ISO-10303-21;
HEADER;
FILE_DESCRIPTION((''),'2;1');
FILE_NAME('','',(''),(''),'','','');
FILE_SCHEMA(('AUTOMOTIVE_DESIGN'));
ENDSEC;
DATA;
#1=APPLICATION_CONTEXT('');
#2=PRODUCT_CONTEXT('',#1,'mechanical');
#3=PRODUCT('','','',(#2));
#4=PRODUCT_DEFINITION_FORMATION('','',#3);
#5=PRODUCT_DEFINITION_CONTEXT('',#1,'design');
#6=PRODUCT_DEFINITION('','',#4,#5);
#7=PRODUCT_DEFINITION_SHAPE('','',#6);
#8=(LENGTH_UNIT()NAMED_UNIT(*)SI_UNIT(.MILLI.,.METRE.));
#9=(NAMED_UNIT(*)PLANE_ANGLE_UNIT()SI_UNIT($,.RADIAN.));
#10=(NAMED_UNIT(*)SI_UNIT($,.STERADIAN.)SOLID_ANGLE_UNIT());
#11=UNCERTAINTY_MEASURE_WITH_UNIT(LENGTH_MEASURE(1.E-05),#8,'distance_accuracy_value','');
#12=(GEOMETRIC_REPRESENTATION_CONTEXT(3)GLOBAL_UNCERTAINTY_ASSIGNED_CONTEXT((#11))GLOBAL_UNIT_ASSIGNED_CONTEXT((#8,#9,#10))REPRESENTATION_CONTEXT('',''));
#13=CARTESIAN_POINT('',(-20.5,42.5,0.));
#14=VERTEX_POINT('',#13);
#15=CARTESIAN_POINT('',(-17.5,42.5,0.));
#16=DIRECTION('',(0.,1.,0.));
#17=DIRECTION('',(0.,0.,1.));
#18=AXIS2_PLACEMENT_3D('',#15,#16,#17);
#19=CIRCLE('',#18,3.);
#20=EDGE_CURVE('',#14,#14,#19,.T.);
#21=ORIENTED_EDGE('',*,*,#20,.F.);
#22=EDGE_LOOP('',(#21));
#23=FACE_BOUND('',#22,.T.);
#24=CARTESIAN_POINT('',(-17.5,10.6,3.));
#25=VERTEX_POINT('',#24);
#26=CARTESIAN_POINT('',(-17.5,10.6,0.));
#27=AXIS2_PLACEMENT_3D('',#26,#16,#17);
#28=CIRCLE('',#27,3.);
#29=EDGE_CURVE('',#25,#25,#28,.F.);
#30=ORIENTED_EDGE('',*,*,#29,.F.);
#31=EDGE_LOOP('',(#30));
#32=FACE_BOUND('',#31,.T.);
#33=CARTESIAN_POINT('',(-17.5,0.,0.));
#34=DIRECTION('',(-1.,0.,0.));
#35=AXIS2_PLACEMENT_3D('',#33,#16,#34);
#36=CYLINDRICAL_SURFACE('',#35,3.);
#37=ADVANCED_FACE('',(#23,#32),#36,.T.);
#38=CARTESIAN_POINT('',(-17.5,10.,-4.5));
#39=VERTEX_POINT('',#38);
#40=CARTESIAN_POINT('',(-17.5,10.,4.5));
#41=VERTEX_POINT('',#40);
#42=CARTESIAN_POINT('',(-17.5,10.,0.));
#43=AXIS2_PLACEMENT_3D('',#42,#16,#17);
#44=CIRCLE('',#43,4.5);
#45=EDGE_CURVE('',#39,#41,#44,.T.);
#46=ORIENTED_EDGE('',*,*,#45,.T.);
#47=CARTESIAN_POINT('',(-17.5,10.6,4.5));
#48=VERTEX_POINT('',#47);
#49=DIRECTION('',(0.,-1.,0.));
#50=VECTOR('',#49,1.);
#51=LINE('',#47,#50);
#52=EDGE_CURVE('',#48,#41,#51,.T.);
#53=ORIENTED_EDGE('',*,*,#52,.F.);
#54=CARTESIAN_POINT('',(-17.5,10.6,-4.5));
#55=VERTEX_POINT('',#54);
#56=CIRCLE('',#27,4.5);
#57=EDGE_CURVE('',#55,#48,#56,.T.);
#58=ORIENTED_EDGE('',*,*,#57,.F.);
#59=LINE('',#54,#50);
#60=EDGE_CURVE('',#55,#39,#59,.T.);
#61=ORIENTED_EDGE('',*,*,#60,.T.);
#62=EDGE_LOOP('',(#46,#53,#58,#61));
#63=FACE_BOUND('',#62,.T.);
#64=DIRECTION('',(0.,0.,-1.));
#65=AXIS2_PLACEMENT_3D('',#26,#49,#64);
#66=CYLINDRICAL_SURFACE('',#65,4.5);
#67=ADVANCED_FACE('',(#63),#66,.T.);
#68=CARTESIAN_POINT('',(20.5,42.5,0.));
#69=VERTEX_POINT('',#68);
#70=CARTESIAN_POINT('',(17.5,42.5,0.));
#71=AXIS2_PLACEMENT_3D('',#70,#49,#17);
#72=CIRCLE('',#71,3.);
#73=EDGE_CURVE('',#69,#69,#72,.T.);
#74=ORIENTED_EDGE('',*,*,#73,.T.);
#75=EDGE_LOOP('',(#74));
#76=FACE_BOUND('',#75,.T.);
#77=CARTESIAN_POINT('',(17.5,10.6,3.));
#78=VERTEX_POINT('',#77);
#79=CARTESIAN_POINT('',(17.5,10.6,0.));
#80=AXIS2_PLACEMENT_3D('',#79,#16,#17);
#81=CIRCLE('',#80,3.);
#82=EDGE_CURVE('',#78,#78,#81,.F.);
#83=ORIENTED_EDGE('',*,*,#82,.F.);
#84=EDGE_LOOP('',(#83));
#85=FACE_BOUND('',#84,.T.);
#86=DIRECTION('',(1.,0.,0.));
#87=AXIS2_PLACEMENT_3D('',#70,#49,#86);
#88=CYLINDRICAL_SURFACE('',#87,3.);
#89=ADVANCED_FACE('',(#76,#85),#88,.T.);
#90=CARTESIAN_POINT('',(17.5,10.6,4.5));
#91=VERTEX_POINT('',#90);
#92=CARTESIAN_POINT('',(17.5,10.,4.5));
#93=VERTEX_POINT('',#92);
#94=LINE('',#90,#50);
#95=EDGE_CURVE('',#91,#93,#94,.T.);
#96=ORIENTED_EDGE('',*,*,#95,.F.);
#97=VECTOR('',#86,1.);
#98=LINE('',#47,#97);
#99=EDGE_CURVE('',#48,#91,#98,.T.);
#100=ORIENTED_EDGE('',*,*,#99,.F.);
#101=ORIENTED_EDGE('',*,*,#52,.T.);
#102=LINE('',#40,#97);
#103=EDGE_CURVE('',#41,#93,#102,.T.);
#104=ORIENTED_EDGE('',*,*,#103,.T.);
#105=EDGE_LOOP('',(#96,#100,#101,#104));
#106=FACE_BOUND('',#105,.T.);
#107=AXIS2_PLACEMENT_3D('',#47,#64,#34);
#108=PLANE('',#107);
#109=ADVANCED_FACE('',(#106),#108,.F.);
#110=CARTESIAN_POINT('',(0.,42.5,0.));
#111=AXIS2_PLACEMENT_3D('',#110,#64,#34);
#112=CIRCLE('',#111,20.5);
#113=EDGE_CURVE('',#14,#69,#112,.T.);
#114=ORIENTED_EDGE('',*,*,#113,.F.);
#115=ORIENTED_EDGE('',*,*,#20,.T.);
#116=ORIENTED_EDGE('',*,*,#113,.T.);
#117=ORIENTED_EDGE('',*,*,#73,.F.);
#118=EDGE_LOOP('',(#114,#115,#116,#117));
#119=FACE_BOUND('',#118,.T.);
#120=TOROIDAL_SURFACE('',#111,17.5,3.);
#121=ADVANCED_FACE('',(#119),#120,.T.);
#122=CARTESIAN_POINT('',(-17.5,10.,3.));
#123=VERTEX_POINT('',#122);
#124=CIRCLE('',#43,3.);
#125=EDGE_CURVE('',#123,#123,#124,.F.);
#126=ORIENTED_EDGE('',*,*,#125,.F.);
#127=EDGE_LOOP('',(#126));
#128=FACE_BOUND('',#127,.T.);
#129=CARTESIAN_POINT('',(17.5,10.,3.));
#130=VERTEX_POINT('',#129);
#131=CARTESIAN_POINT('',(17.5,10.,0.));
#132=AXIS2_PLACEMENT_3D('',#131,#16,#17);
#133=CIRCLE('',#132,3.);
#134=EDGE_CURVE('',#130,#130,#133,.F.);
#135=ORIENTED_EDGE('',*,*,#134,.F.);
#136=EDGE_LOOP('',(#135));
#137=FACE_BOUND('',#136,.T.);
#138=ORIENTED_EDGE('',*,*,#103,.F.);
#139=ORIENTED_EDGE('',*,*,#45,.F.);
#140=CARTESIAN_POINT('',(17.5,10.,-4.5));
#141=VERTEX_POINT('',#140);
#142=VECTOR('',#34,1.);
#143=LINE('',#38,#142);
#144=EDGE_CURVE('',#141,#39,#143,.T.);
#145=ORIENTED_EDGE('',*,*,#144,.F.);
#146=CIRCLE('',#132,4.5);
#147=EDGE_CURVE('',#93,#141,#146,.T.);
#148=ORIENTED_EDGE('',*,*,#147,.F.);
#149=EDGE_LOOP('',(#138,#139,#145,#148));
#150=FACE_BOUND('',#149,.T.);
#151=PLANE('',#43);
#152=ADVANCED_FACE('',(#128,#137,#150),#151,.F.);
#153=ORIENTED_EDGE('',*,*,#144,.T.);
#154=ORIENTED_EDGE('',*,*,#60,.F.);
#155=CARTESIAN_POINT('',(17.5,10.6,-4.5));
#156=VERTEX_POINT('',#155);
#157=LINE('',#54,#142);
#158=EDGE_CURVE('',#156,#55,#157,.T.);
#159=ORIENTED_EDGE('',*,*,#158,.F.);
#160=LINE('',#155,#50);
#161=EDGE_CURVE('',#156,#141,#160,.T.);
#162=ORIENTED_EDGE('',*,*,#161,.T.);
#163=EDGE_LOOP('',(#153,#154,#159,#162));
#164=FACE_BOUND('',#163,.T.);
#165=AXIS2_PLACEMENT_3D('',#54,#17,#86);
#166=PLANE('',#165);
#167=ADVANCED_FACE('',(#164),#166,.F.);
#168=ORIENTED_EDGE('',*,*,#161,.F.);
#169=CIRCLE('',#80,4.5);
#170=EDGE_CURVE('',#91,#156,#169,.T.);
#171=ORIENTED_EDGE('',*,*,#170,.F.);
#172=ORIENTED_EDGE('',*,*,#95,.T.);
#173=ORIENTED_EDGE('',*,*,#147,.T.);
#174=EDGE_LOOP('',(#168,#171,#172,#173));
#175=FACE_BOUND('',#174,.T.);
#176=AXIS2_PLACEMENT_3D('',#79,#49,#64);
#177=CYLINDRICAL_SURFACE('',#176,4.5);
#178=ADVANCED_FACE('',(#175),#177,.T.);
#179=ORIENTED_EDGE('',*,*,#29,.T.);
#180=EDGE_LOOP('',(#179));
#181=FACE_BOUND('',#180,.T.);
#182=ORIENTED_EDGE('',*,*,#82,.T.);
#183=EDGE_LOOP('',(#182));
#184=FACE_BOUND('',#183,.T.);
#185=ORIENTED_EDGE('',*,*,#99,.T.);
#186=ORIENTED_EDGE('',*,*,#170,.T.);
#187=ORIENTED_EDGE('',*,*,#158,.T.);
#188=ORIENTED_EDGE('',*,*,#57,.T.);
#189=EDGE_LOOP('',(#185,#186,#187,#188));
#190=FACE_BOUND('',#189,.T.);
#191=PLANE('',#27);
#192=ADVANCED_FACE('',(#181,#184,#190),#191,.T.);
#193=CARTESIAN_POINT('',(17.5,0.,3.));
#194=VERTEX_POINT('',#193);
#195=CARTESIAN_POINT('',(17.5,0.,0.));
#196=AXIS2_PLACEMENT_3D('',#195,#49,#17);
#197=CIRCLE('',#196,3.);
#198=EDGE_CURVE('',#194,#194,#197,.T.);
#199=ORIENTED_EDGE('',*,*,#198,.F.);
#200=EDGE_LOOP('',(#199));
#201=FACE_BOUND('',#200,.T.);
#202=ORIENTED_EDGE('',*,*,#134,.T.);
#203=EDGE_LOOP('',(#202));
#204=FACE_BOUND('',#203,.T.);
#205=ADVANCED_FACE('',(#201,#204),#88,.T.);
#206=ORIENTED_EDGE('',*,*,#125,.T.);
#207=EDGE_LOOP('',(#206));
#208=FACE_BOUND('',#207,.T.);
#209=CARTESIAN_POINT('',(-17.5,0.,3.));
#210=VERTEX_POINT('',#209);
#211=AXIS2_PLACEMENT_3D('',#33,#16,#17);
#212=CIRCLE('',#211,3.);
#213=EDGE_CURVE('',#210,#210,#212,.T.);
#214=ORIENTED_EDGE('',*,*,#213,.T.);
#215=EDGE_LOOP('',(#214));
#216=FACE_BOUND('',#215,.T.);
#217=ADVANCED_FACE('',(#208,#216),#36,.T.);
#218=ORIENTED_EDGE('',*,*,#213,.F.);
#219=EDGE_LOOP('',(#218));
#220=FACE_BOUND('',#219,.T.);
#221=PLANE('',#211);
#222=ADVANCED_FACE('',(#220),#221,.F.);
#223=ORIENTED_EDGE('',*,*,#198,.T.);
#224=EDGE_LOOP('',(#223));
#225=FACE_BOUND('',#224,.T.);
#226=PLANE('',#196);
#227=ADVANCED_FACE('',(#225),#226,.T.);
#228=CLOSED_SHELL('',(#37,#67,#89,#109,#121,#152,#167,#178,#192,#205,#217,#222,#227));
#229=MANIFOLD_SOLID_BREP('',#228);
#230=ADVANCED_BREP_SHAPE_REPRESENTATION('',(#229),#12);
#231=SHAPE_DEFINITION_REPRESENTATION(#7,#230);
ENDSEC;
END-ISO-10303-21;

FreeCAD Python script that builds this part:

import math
import FreeCAD as App
import Part
import Sketcher
Q = App.Units.Quantity

doc = App.newDocument("Part")
body = doc.addObject("PartDesign::Body", "Body")

# Sketch on XZ plane
sketch1 = doc.addObject("Sketcher::SketchObject", "Sketch")
body.addObject(sketch1)
sketch1.AttachmentSupport = (doc.XZ_Plane, [""])
sketch1.MapMode = "FlatFace"
sketch1.addGeometry(Part.Circle(App.Vector(-17.5, 0, 0), App.Vector(0, 0, 1), 3), False)
sketch1.addConstraint([
    Sketcher.Constraint("PointOnObject", 0, 3, -1),
    Sketcher.Constraint("Diameter", 0, Q("6 mm")),
    Sketcher.Constraint("DistanceX", 0, 3, -1, 1, Q("17.5 mm")),
])

# Sketch on XY plane
sketch2 = doc.addObject("Sketcher::SketchObject", "Sketch001")
body.addObject(sketch2)
sketch2.AttachmentSupport = (doc.XY_Plane, [""])
sketch2.MapMode = "FlatFace"
sketch2.addGeometry([
    Part.LineSegment(App.Vector(-17.5, 0, 0), App.Vector(-17.5, 42.5, 0)),
    Part.ArcOfCircle(Part.Circle(App.Vector(0, 42.5, 0), App.Vector(0, 0, 1), 17.5), math.radians(0), math.radians(180)),
    Part.LineSegment(App.Vector(17.5, 42.5, 0), App.Vector(17.5, 0, 0)),
], False)
sketch2.addConstraint([
    Sketcher.Constraint("Tangent", 0, 2, 1, 2),
    Sketcher.Constraint("Tangent", 1, 1, 2, 1),
    Sketcher.Constraint("Vertical", 0),
    Sketcher.Constraint("Vertical", 2),
    Sketcher.Constraint("Symmetric", 0, 1, 2, 2, -1, 1),
    Sketcher.Constraint("PointOnObject", 0, 1, -1),
    Sketcher.Constraint("Radius", 1, Q("17.5 mm")),
    Sketcher.Constraint("DistanceY", 0, 1, 0, 2, Q("42.5 mm")),
])
doc.recompute()

additivepipe = doc.addObject("PartDesign::AdditivePipe", "AdditivePipe")
body.addObject(additivepipe)
additivepipe.Profile = sketch1
additivepipe.Spine = (sketch2, ["Edge1", "Edge2", "Edge3"])

# Sketch on XZ plane
sketch3 = doc.addObject("Sketcher::SketchObject", "Sketch002")
body.addObject(sketch3)
sketch3.AttachmentSupport = (doc.XZ_Plane, [""])
sketch3.MapMode = "FlatFace"
sketch3.AttachmentOffset = App.Placement(App.Vector(0, 0, -10), App.Rotation())
sketch3.addGeometry([
    Part.LineSegment(App.Vector(-17.5, 4.5, 0), App.Vector(17.5, 4.5, 0)),
    Part.ArcOfCircle(Part.Circle(App.Vector(17.5, 0, 0), App.Vector(0, 0, 1), 4.5), math.radians(-90), math.radians(90)),
    Part.LineSegment(App.Vector(17.5, -4.5, 0), App.Vector(-17.5, -4.5, 0)),
    Part.ArcOfCircle(Part.Circle(App.Vector(-17.5, 0, 0), App.Vector(0, 0, 1), 4.5), math.radians(90), math.radians(270)),
], False)
sketch3.addConstraint([
    Sketcher.Constraint("Tangent", 0, 2, 1, 2),
    Sketcher.Constraint("Tangent", 1, 1, 2, 1),
    Sketcher.Constraint("Tangent", 2, 2, 3, 2),
    Sketcher.Constraint("Tangent", 3, 1, 0, 1),
    Sketcher.Constraint("Horizontal", 0),
    Sketcher.Constraint("Horizontal", 2),
    Sketcher.Constraint("Symmetric", 1, 3, 3, 3, -1, 1),
    Sketcher.Constraint("Radius", 1, Q("4.5 mm")),
    Sketcher.Constraint("DistanceX", 0, 1, 0, 2, Q("35 mm")),
])
pad1 = doc.addObject("PartDesign::Pad", "Pad")
body.addObject(pad1)
pad1.Profile = sketch3
pad1.Length = 0.6
pad1.Reversed = True

doc.recompute()
